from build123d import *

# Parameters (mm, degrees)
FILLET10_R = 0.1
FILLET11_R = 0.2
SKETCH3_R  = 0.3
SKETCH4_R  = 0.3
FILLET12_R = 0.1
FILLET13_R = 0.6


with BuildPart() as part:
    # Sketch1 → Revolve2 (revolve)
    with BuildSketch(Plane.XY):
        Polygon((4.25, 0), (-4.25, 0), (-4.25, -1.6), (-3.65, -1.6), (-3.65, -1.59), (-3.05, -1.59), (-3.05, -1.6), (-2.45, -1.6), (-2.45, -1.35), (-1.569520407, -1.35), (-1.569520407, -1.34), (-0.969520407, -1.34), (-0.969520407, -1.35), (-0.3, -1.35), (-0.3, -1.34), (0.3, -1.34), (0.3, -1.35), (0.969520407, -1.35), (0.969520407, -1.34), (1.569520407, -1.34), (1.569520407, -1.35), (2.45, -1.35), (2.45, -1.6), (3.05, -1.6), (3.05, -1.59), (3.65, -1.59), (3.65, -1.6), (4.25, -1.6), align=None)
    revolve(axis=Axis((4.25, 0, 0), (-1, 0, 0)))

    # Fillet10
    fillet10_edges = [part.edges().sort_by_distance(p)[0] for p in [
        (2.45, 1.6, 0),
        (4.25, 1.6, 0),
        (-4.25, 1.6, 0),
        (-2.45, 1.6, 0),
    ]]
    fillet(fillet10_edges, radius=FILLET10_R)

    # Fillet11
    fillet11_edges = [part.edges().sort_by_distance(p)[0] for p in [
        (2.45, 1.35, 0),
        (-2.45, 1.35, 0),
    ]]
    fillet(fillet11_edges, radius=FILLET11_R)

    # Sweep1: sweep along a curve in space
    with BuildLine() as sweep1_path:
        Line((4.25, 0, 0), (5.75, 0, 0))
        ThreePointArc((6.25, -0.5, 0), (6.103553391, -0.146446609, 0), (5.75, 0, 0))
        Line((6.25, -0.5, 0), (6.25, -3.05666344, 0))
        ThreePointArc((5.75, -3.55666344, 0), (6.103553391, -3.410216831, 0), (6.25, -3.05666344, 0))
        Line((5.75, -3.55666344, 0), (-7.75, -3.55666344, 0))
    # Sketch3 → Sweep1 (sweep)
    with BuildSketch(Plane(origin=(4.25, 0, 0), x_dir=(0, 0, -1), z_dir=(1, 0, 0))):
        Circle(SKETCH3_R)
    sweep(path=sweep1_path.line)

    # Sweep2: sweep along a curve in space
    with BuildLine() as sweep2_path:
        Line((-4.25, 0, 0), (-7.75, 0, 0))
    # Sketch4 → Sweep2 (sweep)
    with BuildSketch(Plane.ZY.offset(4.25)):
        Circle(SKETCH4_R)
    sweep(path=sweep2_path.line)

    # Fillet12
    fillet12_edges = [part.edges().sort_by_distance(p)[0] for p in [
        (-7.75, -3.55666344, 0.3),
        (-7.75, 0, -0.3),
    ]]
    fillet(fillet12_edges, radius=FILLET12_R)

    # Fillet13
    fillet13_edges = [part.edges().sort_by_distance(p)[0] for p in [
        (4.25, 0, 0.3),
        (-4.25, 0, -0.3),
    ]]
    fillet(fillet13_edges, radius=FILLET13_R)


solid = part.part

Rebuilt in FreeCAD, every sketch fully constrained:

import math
import FreeCAD as App
import Part
import Sketcher
Q = App.Units.Quantity


def edges_at(feature, points):
    """Names of the edges that pass closest to the given points."""
    edges = feature.Shape.Edges
    near = lambda p: min(range(len(edges)), key=lambda i: edges[i].distToShape(Part.Vertex(*p))[0])
    return sorted({f"Edge{near(p) + 1}" for p in points})

doc = App.newDocument("Part")
body = doc.addObject("PartDesign::Body", "Body")

# Sketch on XY plane
sketch1 = doc.addObject("Sketcher::SketchObject", "Sketch")
body.addObject(sketch1)
sketch1.AttachmentSupport = (doc.XY_Plane, [""])
sketch1.MapMode = "FlatFace"
sketch1.addGeometry([
    Part.LineSegment(App.Vector(4.25, 0, 0), App.Vector(-4.25, 0, 0)),  # 0
    Part.LineSegment(App.Vector(-4.25, 0, 0), App.Vector(-4.25, -1.6, 0)),  # 1
    Part.LineSegment(App.Vector(-4.25, -1.6, 0), App.Vector(-3.65, -1.6, 0)),  # 2
    Part.LineSegment(App.Vector(-3.65, -1.6, 0), App.Vector(-3.65, -1.59, 0)),  # 3
    Part.LineSegment(App.Vector(-3.65, -1.59, 0), App.Vector(-3.05, -1.59, 0)),  # 4
    Part.LineSegment(App.Vector(-3.05, -1.59, 0), App.Vector(-3.05, -1.6, 0)),  # 5
    Part.LineSegment(App.Vector(-3.05, -1.6, 0), App.Vector(-2.45, -1.6, 0)),  # 6
    Part.LineSegment(App.Vector(-2.45, -1.6, 0), App.Vector(-2.45, -1.35, 0)),  # 7
    Part.LineSegment(App.Vector(-2.45, -1.35, 0), App.Vector(-1.57, -1.35, 0)),  # 8
    Part.LineSegment(App.Vector(-1.57, -1.35, 0), App.Vector(-1.57, -1.34, 0)),  # 9
    Part.LineSegment(App.Vector(-1.57, -1.34, 0), App.Vector(-0.97, -1.34, 0)),  # 10
    Part.LineSegment(App.Vector(-0.97, -1.34, 0), App.Vector(-0.97, -1.35, 0)),  # 11
    Part.LineSegment(App.Vector(-0.97, -1.35, 0), App.Vector(-0.3, -1.35, 0)),  # 12
    Part.LineSegment(App.Vector(-0.3, -1.35, 0), App.Vector(-0.3, -1.34, 0)),  # 13
    Part.LineSegment(App.Vector(-0.3, -1.34, 0), App.Vector(0.3, -1.34, 0)),  # 14
    Part.LineSegment(App.Vector(0.3, -1.34, 0), App.Vector(0.3, -1.35, 0)),  # 15
    Part.LineSegment(App.Vector(0.3, -1.35, 0), App.Vector(0.97, -1.35, 0)),  # 16
    Part.LineSegment(App.Vector(0.97, -1.35, 0), App.Vector(0.97, -1.34, 0)),  # 17
    Part.LineSegment(App.Vector(0.97, -1.34, 0), App.Vector(1.57, -1.34, 0)),  # 18
    Part.LineSegment(App.Vector(1.57, -1.34, 0), App.Vector(1.57, -1.35, 0)),  # 19
    Part.LineSegment(App.Vector(1.57, -1.35, 0), App.Vector(2.45, -1.35, 0)),  # 20
    Part.LineSegment(App.Vector(2.45, -1.35, 0), App.Vector(2.45, -1.6, 0)),  # 21
    Part.LineSegment(App.Vector(2.45, -1.6, 0), App.Vector(3.05, -1.6, 0)),  # 22
    Part.LineSegment(App.Vector(3.05, -1.6, 0), App.Vector(3.05, -1.59, 0)),  # 23
    Part.LineSegment(App.Vector(3.05, -1.59, 0), App.Vector(3.65, -1.59, 0)),  # 24
    Part.LineSegment(App.Vector(3.65, -1.59, 0), App.Vector(3.65, -1.6, 0)),  # 25
    Part.LineSegment(App.Vector(3.65, -1.6, 0), App.Vector(4.25, -1.6, 0)),  # 26
    Part.LineSegment(App.Vector(4.25, -1.6, 0), App.Vector(4.25, 0, 0)),  # 27
], False)
sketch1.addConstraint([
    Sketcher.Constraint("Coincident", 0, 2, 1, 1),
    Sketcher.Constraint("Coincident", 1, 2, 2, 1),
    Sketcher.Constraint("Coincident", 2, 2, 3, 1),
    Sketcher.Constraint("Coincident", 3, 2, 4, 1),
    Sketcher.Constraint("Coincident", 4, 2, 5, 1),
    Sketcher.Constraint("Coincident", 5, 2, 6, 1),
    Sketcher.Constraint("Coincident", 6, 2, 7, 1),
    Sketcher.Constraint("Coincident", 7, 2, 8, 1),
    Sketcher.Constraint("Coincident", 8, 2, 9, 1),
    Sketcher.Constraint("Coincident", 9, 2, 10, 1),
    Sketcher.Constraint("Coincident", 10, 2, 11, 1),
    Sketcher.Constraint("Coincident", 11, 2, 12, 1),
    Sketcher.Constraint("Coincident", 12, 2, 13, 1),
    Sketcher.Constraint("Coincident", 13, 2, 14, 1),
    Sketcher.Constraint("Coincident", 14, 2, 15, 1),
    Sketcher.Constraint("Coincident", 15, 2, 16, 1),
    Sketcher.Constraint("Coincident", 16, 2, 17, 1),
    Sketcher.Constraint("Coincident", 17, 2, 18, 1),
    Sketcher.Constraint("Coincident", 18, 2, 19, 1),
    Sketcher.Constraint("Coincident", 19, 2, 20, 1),
    Sketcher.Constraint("Coincident", 20, 2, 21, 1),
    Sketcher.Constraint("Coincident", 21, 2, 22, 1),
    Sketcher.Constraint("Coincident", 22, 2, 23, 1),
    Sketcher.Constraint("Coincident", 23, 2, 24, 1),
    Sketcher.Constraint("Coincident", 24, 2, 25, 1),
    Sketcher.Constraint("Coincident", 25, 2, 26, 1),
    Sketcher.Constraint("Coincident", 26, 2, 27, 1),
    Sketcher.Constraint("Coincident", 27, 2, 0, 1),
    Sketcher.Constraint("Horizontal", 0),
    Sketcher.Constraint("Vertical", 1),
    Sketcher.Constraint("Horizontal", 2),
    Sketcher.Constraint("Vertical", 3),
    Sketcher.Constraint("Horizontal", 4),
    Sketcher.Constraint("Vertical", 5),
    Sketcher.Constraint("Horizontal", 6),
    Sketcher.Constraint("Vertical", 7),
    Sketcher.Constraint("Horizontal", 8),
    Sketcher.Constraint("Vertical", 9),
    Sketcher.Constraint("Horizontal", 10),
    Sketcher.Constraint("Vertical", 11),
    Sketcher.Constraint("Horizontal", 12),
    Sketcher.Constraint("Vertical", 13),
    Sketcher.Constraint("Horizontal", 14),
    Sketcher.Constraint("Vertical", 15),
    Sketcher.Constraint("Horizontal", 16),
    Sketcher.Constraint("Vertical", 17),
    Sketcher.Constraint("Horizontal", 18),
    Sketcher.Constraint("Vertical", 19),
    Sketcher.Constraint("Horizontal", 20),
    Sketcher.Constraint("Vertical", 21),
    Sketcher.Constraint("Horizontal", 22),
    Sketcher.Constraint("Vertical", 23),
    Sketcher.Constraint("Horizontal", 24),
    Sketcher.Constraint("Vertical", 25),
    Sketcher.Constraint("Horizontal", 26),
    Sketcher.Constraint("Vertical", 27),
    Sketcher.Constraint("Symmetric", 0, 2, 27, 2, -1, 1),
    Sketcher.Constraint("Symmetric", 12, 2, 15, 2, -2),
    Sketcher.Constraint("Symmetric", 10, 2, 17, 2, -2),
    Sketcher.Constraint("Symmetric", 8, 2, 19, 2, -2),
    Sketcher.Constraint("Symmetric", 6, 2, 21, 2, -2),
    Sketcher.Constraint("Symmetric", 4, 2, 23, 2, -2),
    Sketcher.Constraint("Symmetric", 2, 2, 25, 2, -2),
    Sketcher.Constraint("Horizontal", 2, 2, 5, 2),
    Sketcher.Constraint("Horizontal", 8, 2, 11, 2),
    Sketcher.Constraint("Horizontal", 10, 2, 13, 2),
    Sketcher.Constraint("Equal", 2, 4),
    Sketcher.Constraint("Equal", 4, 6),
    Sketcher.Constraint("Equal", 6, 10),
    Sketcher.Constraint("Equal", 10, 14),
    Sketcher.Constraint("Equal", 5, 9),
    Sketcher.Constraint("DistanceX", 0, 2, 0, 1, Q("8.5 mm")),
    Sketcher.Constraint("DistanceX", 2, 1, 2, 2, Q("0.6 mm")),
    Sketcher.Constraint("DistanceY", 1, 2, 1, 1, Q("1.6 mm")),
    Sketcher.Constraint("DistanceY", 3, 1, 3, 2, Q("0.01 mm")),
    Sketcher.Constraint("DistanceY", 7, 1, 7, 2, Q("0.25 mm")),
    Sketcher.Constraint("DistanceX", 8, 1, 8, 2, Q("0.88048 mm")),
])
revolution = doc.addObject("PartDesign::Revolution", "Revolution")
body.addObject(revolution)
revolution.Profile = sketch1
revolution.ReferenceAxis = (sketch1, ["H_Axis"])
revolution.Angle = 360
doc.recompute()

fillet = doc.addObject("PartDesign::Fillet", "Fillet")
body.addObject(fillet)
fillet.Base = (revolution, edges_at(revolution, [
    (2.45, 1.6, 0),
    (4.25, 1.6, 0),
    (-4.25, 1.6, 0),
    (-2.45, 1.6, 0),
]))
fillet.Radius = 0.1
doc.recompute()

fillet2 = doc.addObject("PartDesign::Fillet", "Fillet001")
body.addObject(fillet2)
fillet2.Base = (fillet, edges_at(fillet, [(2.45, 1.35, 0), (-2.45, 1.35, 0)]))
fillet2.Radius = 0.2

# Sketch on YZ plane
sketch2 = doc.addObject("Sketcher::SketchObject", "Sketch001")
body.addObject(sketch2)
sketch2.AttachmentSupport = (doc.YZ_Plane, [""])
sketch2.MapMode = "FlatFace"
sketch2.AttachmentOffset = App.Placement(App.Vector(0, 0, 4.25), App.Rotation())
sketch2.addGeometry(Part.Circle(App.Vector(0, 0, 0), App.Vector(0, 0, 1), 0.3), False)
sketch2.addConstraint([
    Sketcher.Constraint("Coincident", 0, 3, -1, 1),
    Sketcher.Constraint("Diameter", 0, Q("0.6 mm")),
])

# Sketch on XY plane
sketch3 = doc.addObject("Sketcher::SketchObject", "Sketch002")
body.addObject(sketch3)
sketch3.AttachmentSupport = (doc.XY_Plane, [""])
sketch3.MapMode = "FlatFace"
sketch3.addGeometry([
    Part.LineSegment(App.Vector(4.25, 0, 0), App.Vector(5.75, 0, 0)),  # 0
    Part.ArcOfCircle(Part.Circle(App.Vector(5.75, -0.5, 0), App.Vector(0, 0, 1), 0.5), math.radians(0), math.radians(90)),  # 1
    Part.LineSegment(App.Vector(6.25, -0.5, 0), App.Vector(6.25, -3.06, 0)),  # 2
    Part.ArcOfCircle(Part.Circle(App.Vector(5.75, -3.06, 0), App.Vector(0, 0, 1), 0.5), math.radians(-90), math.radians(0)),  # 3
    Part.LineSegment(App.Vector(5.75, -3.56, 0), App.Vector(-7.75, -3.56, 0)),  # 4
], False)
sketch3.addConstraint([
    Sketcher.Constraint("Tangent", 0, 2, 1, 2),
    Sketcher.Constraint("Tangent", 1, 1, 2, 1),
    Sketcher.Constraint("Tangent", 2, 2, 3, 2),
    Sketcher.Constraint("Tangent", 3, 1, 4, 1),
    Sketcher.Constraint("Horizontal", 0),
    Sketcher.Constraint("Vertical", 2),
    Sketcher.Constraint("Horizontal", 4),
    Sketcher.Constraint("Equal", 1, 3),
    Sketcher.Constraint("PointOnObject", 0, 1, -1),
    Sketcher.Constraint("Radius", 1, Q("0.5 mm")),
    Sketcher.Constraint("DistanceX", 0, 1, 0, 2, Q("1.5 mm")),
    Sketcher.Constraint("DistanceX", 4, 2, 4, 1, Q("13.5 mm")),
    Sketcher.Constraint("DistanceX", -1, 1, 1, 3, Q("5.75 mm")),
    Sketcher.Constraint("DistanceY", 2, 2, 2, 1, Q("2.556663 mm")),
])
doc.recompute()

additivepipe = doc.addObject("PartDesign::AdditivePipe", "AdditivePipe")
body.addObject(additivepipe)
additivepipe.Profile = sketch2
additivepipe.Spine = (sketch3, ["Edge1", "Edge2", "Edge3", "Edge4", "Edge5"])

# Sketch on YZ plane
sketch4 = doc.addObject("Sketcher::SketchObject", "Sketch003")
body.addObject(sketch4)
sketch4.AttachmentSupport = (doc.YZ_Plane, [""])
sketch4.MapMode = "FlatFace"
sketch4.AttachmentOffset = App.Placement(App.Vector(0, 0, -4.25), App.Rotation())
sketch4.addGeometry(Part.Circle(App.Vector(0, 0, 0), App.Vector(0, 0, 1), 0.3), False)
sketch4.addConstraint([
    Sketcher.Constraint("Coincident", 0, 3, -1, 1),
    Sketcher.Constraint("Diameter", 0, Q("0.6 mm")),
])

# Sketch on XY plane
sketch5 = doc.addObject("Sketcher::SketchObject", "Sketch004")
body.addObject(sketch5)
sketch5.AttachmentSupport = (doc.XY_Plane, [""])
sketch5.MapMode = "FlatFace"
sketch5.addGeometry(Part.LineSegment(App.Vector(-4.2, 0, 0), App.Vector(-7.8, 0, 0)), False)
sketch5.addConstraint([
    Sketcher.Constraint("Horizontal", 0),
    Sketcher.Constraint("PointOnObject", 0, 1, -1),
    Sketcher.Constraint("DistanceX", 0, 2, 0, 1, Q("3.5 mm")),
    Sketcher.Constraint("DistanceX", 0, 1, -1, 1, Q("4.25 mm")),
])
doc.recompute()

additivepipe2 = doc.addObject("PartDesign::AdditivePipe", "AdditivePipe001")
body.addObject(additivepipe2)
additivepipe2.Profile = sketch4
additivepipe2.Spine = (sketch5, ["Edge1"])
doc.recompute()

fillet3 = doc.addObject("PartDesign::Fillet", "Fillet002")
body.addObject(fillet3)
fillet3.Base = (additivepipe2, edges_at(additivepipe2, [(-7.75, -3.557, 0.3), (-7.75, 0, -0.3)]))
fillet3.Radius = 0.1
doc.recompute()

fillet4 = doc.addObject("PartDesign::Fillet", "Fillet003")
body.addObject(fillet4)
fillet4.Base = (fillet3, edges_at(fillet3, [(4.25, 0, 0.3), (-4.25, 0, -0.3)]))
fillet4.Radius = 0.6

doc.recompute()
